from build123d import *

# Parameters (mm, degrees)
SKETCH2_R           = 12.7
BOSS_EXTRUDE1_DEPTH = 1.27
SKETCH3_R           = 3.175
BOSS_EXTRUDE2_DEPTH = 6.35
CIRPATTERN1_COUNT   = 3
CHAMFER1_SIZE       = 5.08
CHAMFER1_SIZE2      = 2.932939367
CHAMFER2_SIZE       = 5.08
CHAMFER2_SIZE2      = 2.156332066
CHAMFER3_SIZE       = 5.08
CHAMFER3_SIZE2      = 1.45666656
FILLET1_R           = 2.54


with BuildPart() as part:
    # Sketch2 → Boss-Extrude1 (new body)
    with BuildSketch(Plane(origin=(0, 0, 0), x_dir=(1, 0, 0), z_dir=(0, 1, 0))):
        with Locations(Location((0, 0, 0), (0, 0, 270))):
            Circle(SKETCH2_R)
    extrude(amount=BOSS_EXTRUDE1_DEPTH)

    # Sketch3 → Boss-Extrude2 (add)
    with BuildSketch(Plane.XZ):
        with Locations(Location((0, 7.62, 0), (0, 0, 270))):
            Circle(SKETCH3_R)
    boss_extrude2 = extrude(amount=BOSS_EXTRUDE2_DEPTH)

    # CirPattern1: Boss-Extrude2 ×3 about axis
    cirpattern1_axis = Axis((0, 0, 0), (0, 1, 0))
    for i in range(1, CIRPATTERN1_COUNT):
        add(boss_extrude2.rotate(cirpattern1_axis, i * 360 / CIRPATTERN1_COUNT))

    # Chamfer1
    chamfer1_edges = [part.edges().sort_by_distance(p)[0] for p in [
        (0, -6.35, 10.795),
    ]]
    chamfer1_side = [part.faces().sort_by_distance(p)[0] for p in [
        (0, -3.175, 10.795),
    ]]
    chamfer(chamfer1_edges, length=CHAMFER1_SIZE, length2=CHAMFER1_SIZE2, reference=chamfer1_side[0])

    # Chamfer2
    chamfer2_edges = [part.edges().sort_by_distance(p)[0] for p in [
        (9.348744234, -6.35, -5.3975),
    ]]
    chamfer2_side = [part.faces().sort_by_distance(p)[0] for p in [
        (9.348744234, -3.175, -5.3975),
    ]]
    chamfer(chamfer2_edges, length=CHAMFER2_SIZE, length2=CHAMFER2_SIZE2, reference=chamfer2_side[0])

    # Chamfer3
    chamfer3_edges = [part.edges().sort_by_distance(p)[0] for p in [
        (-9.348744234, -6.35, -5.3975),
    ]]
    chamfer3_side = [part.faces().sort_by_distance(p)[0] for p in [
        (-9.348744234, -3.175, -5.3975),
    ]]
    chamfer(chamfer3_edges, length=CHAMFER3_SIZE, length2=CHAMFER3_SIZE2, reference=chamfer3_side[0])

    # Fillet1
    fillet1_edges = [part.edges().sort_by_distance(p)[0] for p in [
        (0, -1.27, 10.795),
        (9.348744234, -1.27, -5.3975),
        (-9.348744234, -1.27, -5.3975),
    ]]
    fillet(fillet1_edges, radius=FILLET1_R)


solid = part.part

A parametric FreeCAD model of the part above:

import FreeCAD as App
import Part
import Sketcher

V = App.Vector
Q = App.Units.Quantity


def edges_at(feature, points):
    """Names of the edges that pass closest to the given points."""
    edges = feature.Shape.Edges
    near = lambda p: min(range(len(edges)), key=lambda i: edges[i].distToShape(Part.Vertex(*p))[0])
    return sorted({f"Edge{near(p) + 1}" for p in points})

doc = App.newDocument("Part")
params = doc.addObject("Spreadsheet::Sheet", "Params")
for row, (alias, value) in enumerate([
    ("sketch1_diameter", "1 in"),
    ("pad1_length", "0.05 in"),
    ("sketch2_diameter", "0.25 in"),
    ("pad2_length", "0.25 in"),
    ("chamfer_size", "0.2 in"),
    ("chamfer_size2", "2.932939 mm"),
    ("chamfer2_size", "0.2 in"),
    ("chamfer2_size2", "2.156332 mm"),
    ("chamfer3_size", "0.2 in"),
    ("chamfer3_size2", "1.456667 mm"),
    ("fillet_radius", "0.1 in"),
], start=1):
    params.set(f"A{row}", alias)
    params.set(f"B{row}", "=" + value)
    params.setAlias(f"B{row}", alias)

body = doc.addObject("PartDesign::Body", "Body")

# Sketch on XZ plane
sketch1 = body.newObject("Sketcher::SketchObject", "Sketch")
sketch1.AttachmentSupport = (doc.getObject("XZ_Plane"), [""])
sketch1.MapMode = "FlatFace"
sketch1.addGeometry(Part.Circle(V(0, 0, 0), V(0, 0, 1), 13), False)
sketch1.addConstraint([
    Sketcher.Constraint("Coincident", 0, 3, -1, 1),
    Sketcher.Constraint("Diameter", 0, Q("1 in")),
])
sketch1.setExpression("Constraints[1]", "Params.sketch1_diameter")
pad1 = body.newObject("PartDesign::Pad", "Pad")
pad1.Profile = sketch1
pad1.setExpression("Length", "Params.pad1_length")
pad1.Reversed = True

# Sketch on XZ plane
sketch2 = body.newObject("Sketcher::SketchObject", "Sketch001")
sketch2.AttachmentSupport = (doc.getObject("XZ_Plane"), [""])
sketch2.MapMode = "FlatFace"
sketch2.addGeometry(Part.Circle(V(0, 7.6, 0), V(0, 0, 1), 3.2), False)
sketch2.addConstraint([
    Sketcher.Constraint("PointOnObject", 0, 3, -2),
    Sketcher.Constraint("Diameter", 0, Q("0.25 in")),
    Sketcher.Constraint("DistanceY", -1, 1, 0, 3, Q("0.3 in")),
])
sketch2.setExpression("Constraints[1]", "Params.sketch2_diameter")
pad2 = body.newObject("PartDesign::Pad", "Pad001")
pad2.Profile = sketch2
pad2.setExpression("Length", "Params.pad2_length")
doc.recompute()

polarpattern = body.newObject("PartDesign::PolarPattern", "PolarPattern")
polarpattern.Originals = [pad2]
polarpattern.Axis = (doc.getObject("Y_Axis"), [""])
polarpattern.Angle = 360
polarpattern.Occurrences = 3
body.Tip = polarpattern
doc.recompute()

chamfer = body.newObject("PartDesign::Chamfer", "Chamfer")
chamfer.Base = (polarpattern, edges_at(polarpattern, [(0, -6.35, 10.795)]))
chamfer.ChamferType = "Two distances"
chamfer.setExpression("Size", "Params.chamfer_size")
chamfer.setExpression("Size2", "Params.chamfer_size2")
doc.recompute()

chamfer2 = body.newObject("PartDesign::Chamfer", "Chamfer001")
chamfer2.Base = (chamfer, edges_at(chamfer, [(9.349, -6.35, -5.397)]))
chamfer2.ChamferType = "Two distances"
chamfer2.setExpression("Size", "Params.chamfer2_size")
chamfer2.setExpression("Size2", "Params.chamfer2_size2")
doc.recompute()

chamfer3 = body.newObject("PartDesign::Chamfer", "Chamfer002")
chamfer3.Base = (chamfer2, edges_at(chamfer2, [(-9.349, -6.35, -5.397)]))
chamfer3.ChamferType = "Two distances"
chamfer3.setExpression("Size", "Params.chamfer3_size")
chamfer3.setExpression("Size2", "Params.chamfer3_size2")
doc.recompute()

fillet = body.newObject("PartDesign::Fillet", "Fillet")
fillet.Base = (chamfer3, edges_at(chamfer3, [(0, -1.27, 10.795), (9.349, -1.27, -5.397), (-9.349, -1.27, -5.397)]))
fillet.setExpression("Radius", "Params.fillet_radius")

doc.recompute()
